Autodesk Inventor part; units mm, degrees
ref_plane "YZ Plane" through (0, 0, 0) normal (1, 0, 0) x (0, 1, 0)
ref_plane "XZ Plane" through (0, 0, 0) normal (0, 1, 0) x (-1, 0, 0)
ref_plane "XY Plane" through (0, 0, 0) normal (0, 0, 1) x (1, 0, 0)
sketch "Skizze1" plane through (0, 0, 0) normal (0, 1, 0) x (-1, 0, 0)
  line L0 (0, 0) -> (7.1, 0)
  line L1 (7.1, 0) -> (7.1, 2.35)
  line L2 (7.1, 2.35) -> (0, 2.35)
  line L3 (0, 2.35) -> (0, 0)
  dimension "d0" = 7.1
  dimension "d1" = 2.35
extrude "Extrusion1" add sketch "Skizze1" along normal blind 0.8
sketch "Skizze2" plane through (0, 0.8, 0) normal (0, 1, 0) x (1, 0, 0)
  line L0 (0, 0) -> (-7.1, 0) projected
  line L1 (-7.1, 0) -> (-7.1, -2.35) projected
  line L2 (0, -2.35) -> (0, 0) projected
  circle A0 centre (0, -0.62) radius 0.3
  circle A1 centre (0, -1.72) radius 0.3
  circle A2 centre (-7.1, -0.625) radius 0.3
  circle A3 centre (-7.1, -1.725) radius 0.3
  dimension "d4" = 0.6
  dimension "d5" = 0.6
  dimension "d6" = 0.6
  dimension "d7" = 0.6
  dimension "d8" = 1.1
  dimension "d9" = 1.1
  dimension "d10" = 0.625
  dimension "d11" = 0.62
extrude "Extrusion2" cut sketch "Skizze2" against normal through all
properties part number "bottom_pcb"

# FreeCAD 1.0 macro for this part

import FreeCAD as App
import Part
import Sketcher

V = App.Vector


def add_polygon(sketch, points):
    """Adds a closed chain of lines whose ends are joined by coincident constraints."""
    first, n = sketch.GeometryCount, len(points)
    for a, b in zip(points, points[1:] + points[:1]):
        sketch.addGeometry(Part.LineSegment(App.Vector(*a, 0), App.Vector(*b, 0)), False)
    for i in range(n):
        sketch.addConstraint(Sketcher.Constraint("Coincident", first + i, 2, first + (i + 1) % n, 1))

doc = App.newDocument("Part")
body = doc.addObject("PartDesign::Body", "Body")

# Sketch on XZ plane
sketch1 = body.newObject("Sketcher::SketchObject", "Sketch")
sketch1.AttachmentSupport = (doc.getObject("XZ_Plane"), [""])
sketch1.MapMode = "FlatFace"
add_polygon(sketch1, [(0, 2.4), (0, 0), (-7.1, 0), (-7.1, 2.4)])  # lines 0-3
sketch1.addConstraint([
    Sketcher.Constraint("Vertical", 0),
    Sketcher.Constraint("Horizontal", 1),
    Sketcher.Constraint("Vertical", 2),
    Sketcher.Constraint("Horizontal", 3),
    Sketcher.Constraint("Coincident", 0, 2, -1, 1),
    Sketcher.Constraint("DistanceX", 1, 2, 1, 1, 7.1),
    Sketcher.Constraint("DistanceY", 0, 2, 0, 1, 2.35),
])
pad1 = body.newObject("PartDesign::Pad", "Pad")
pad1.Profile = sketch1
pad1.Length = 0.8
pad1.Reversed = True

# Sketch on XZ plane
sketch2 = body.newObject("Sketcher::SketchObject", "Sketch001")
sketch2.AttachmentSupport = (doc.getObject("XZ_Plane"), [""])
sketch2.MapMode = "FlatFace"
sketch2.AttachmentOffset = App.Placement(V(0, 0, -0.8), App.Rotation())
sketch2.addGeometry([
    Part.Circle(V(-7.1, 1.73, 0), V(0, 0, 1), 0.3),
    Part.Circle(V(-7.1, 0.62, 0), V(0, 0, 1), 0.3),
    Part.Circle(V(0, 1.72, 0), V(0, 0, 1), 0.3),
    Part.Circle(V(0, 0.62, 0), V(0, 0, 1), 0.3),
], False)
sketch2.addConstraint([
    Sketcher.Constraint("Equal", 0, 1),
    Sketcher.Constraint("Equal", 1, 2),
    Sketcher.Constraint("Equal", 2, 3),
    Sketcher.Constraint("PointOnObject", 2, 3, -2),
    Sketcher.Constraint("PointOnObject", 3, 3, -2),
    Sketcher.Constraint("Vertical", 0, 3, 1, 3),
    Sketcher.Constraint("Diameter", 0, 0.6),
    Sketcher.Constraint("DistanceY", 1, 3, 0, 3, 1.1),
    Sketcher.Constraint("DistanceY", 3, 3, 2, 3, 1.1),
    Sketcher.Constraint("DistanceY", -1, 1, 3, 3, 0.62),
    Sketcher.Constraint("DistanceY", -1, 1, 1, 3, 0.625),
    Sketcher.Constraint("DistanceX", 0, 3, -1, 1, 7.1),
])
pocket1 = body.newObject("PartDesign::Pocket", "Pocket")
pocket1.Profile = sketch2
pocket1.Type = "ThroughAll"
pocket1.Reversed = True

doc.recompute()
